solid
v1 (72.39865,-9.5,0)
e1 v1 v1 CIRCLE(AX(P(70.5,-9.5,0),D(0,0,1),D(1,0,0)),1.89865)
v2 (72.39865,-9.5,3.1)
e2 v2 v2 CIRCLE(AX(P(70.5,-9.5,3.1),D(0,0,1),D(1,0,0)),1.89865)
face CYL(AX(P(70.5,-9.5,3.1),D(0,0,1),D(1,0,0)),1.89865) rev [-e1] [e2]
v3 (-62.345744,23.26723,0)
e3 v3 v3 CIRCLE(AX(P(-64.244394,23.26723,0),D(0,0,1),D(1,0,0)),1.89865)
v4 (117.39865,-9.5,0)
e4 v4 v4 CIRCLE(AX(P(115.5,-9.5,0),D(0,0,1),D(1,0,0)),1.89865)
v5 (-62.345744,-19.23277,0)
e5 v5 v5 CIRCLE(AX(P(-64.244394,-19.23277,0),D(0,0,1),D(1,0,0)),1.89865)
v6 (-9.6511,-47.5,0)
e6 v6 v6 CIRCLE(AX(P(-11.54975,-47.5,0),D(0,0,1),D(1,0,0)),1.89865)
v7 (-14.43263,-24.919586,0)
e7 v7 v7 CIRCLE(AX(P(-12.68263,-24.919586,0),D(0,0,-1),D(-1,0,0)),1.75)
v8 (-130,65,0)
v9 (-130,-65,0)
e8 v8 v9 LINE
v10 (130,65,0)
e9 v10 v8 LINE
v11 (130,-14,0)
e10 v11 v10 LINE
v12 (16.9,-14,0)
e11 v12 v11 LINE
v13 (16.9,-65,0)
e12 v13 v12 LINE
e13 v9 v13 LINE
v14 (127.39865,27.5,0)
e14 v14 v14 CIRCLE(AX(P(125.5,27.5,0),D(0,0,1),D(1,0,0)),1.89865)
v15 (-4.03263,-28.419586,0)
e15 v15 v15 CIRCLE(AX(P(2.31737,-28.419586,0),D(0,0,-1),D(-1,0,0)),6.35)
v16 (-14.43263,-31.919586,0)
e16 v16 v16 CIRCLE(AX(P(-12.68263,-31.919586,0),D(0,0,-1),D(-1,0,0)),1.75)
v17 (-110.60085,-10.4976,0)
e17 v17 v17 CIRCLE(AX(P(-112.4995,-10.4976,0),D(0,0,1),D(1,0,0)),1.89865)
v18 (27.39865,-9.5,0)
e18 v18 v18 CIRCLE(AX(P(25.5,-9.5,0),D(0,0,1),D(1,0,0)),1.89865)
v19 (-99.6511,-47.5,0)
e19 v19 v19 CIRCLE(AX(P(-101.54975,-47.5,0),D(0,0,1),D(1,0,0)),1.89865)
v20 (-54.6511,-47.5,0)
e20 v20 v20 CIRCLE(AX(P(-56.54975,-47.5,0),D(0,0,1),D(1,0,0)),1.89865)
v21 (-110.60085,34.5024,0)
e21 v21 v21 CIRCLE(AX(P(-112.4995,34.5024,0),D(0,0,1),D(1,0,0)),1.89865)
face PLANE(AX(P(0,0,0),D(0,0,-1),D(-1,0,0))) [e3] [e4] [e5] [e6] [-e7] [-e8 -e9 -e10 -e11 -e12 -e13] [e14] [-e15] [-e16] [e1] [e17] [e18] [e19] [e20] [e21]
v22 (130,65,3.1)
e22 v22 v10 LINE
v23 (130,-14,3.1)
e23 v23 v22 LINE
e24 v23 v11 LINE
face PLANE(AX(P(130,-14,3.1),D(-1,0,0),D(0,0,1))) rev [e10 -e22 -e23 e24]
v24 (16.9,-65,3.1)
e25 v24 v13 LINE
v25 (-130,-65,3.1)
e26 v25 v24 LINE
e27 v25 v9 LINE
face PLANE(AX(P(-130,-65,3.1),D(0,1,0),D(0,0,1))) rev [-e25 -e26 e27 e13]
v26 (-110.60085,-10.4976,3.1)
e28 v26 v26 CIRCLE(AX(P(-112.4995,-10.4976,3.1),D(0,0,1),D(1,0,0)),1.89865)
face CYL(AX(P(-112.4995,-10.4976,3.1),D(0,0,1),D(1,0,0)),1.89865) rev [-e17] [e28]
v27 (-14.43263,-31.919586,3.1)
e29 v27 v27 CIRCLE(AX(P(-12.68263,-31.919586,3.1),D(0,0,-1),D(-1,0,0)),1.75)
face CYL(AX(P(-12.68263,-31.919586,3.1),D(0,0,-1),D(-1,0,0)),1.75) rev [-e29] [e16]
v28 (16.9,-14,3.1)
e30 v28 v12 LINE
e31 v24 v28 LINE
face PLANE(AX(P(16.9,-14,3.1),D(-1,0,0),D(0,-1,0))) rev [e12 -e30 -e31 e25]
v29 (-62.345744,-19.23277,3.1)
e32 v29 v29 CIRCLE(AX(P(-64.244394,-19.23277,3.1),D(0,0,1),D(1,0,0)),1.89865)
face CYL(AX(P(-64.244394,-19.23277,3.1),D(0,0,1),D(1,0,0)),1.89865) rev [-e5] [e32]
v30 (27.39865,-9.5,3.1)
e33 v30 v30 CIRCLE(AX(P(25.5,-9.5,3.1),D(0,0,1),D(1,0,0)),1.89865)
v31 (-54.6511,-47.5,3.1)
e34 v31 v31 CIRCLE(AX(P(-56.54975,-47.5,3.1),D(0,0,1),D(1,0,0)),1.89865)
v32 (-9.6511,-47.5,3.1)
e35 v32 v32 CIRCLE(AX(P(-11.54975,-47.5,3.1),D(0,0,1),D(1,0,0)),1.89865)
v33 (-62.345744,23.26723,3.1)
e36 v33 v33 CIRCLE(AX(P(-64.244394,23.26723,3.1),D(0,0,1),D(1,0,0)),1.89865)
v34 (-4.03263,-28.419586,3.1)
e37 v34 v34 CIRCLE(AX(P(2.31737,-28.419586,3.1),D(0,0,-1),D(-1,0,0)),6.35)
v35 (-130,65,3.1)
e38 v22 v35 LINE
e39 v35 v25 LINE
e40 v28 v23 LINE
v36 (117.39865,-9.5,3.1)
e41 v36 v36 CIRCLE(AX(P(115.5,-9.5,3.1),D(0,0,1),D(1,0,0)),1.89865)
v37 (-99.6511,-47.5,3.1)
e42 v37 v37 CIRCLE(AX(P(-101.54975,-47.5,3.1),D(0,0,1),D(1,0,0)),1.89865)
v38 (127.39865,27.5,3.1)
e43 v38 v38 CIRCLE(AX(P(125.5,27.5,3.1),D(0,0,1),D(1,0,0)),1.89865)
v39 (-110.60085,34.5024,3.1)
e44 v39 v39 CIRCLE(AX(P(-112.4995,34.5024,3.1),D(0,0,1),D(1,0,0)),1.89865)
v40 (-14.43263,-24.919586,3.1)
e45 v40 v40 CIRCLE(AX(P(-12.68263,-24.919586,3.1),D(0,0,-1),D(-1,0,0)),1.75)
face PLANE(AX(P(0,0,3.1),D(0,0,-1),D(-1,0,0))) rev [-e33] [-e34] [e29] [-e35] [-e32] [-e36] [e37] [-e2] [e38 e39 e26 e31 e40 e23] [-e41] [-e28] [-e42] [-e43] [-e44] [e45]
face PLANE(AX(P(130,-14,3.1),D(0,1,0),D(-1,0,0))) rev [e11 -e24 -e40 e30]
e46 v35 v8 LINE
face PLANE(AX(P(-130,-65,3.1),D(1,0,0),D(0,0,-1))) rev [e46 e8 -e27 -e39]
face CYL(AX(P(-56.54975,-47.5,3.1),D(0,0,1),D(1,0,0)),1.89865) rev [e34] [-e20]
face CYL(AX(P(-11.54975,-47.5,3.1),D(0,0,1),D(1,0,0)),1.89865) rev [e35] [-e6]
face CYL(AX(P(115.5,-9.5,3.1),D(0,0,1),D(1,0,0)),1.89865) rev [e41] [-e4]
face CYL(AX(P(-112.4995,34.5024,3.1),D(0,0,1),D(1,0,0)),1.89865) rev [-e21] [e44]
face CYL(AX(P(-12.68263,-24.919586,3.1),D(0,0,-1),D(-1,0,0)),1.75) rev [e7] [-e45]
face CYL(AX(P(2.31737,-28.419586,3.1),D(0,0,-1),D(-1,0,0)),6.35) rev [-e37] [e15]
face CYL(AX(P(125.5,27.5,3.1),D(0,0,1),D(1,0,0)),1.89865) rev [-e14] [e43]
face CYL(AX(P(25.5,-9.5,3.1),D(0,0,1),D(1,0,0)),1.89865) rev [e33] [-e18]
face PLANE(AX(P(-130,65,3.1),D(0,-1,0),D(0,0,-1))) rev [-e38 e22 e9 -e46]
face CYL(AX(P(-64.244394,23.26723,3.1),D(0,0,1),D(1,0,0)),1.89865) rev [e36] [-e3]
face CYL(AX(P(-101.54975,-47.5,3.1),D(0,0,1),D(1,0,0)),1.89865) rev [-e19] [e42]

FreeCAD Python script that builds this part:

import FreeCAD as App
import Part
import Sketcher
from FreeCAD import Vector


def add_polygon(sketch, points):
    """Adds a closed chain of lines whose ends are joined by coincident constraints."""
    first, n = sketch.GeometryCount, len(points)
    for a, b in zip(points, points[1:] + points[:1]):
        sketch.addGeometry(Part.LineSegment(App.Vector(*a, 0), App.Vector(*b, 0)), False)
    for i in range(n):
        sketch.addConstraint(Sketcher.Constraint("Coincident", first + i, 2, first + (i + 1) % n, 1))

doc = App.newDocument("Part")
body = doc.addObject("PartDesign::Body", "Body")

sketch1 = body.newObject("Sketcher::SketchObject", "Sketch")
sketch1.AttachmentSupport = (doc.getObject("XY_Plane"), [""])
sketch1.MapMode = "FlatFace"
add_polygon(sketch1, [(17, -14), (130, -14), (130, 65), (-130, 65), (-130, -65), (17, -65)])
sketch1.addConstraint([
    Sketcher.Constraint("Horizontal", 0),
    Sketcher.Constraint("Vertical", 1),
    Sketcher.Constraint("Horizontal", 2),
    Sketcher.Constraint("Vertical", 3),
    Sketcher.Constraint("Horizontal", 4),
    Sketcher.Constraint("Vertical", 5),
    Sketcher.Constraint("Symmetric", 1, 2, 3, 2, -1, 1),
    Sketcher.Constraint("DistanceX", 2, 2, 2, 1, 260.0),
    Sketcher.Constraint("DistanceY", 1, 1, 1, 2, 79.0),
    Sketcher.Constraint("DistanceY", 3, 2, 3, 1, 130.0),
    Sketcher.Constraint("DistanceX", 0, 1, 0, 2, 113.1),
])
pad1 = body.newObject("PartDesign::Pad", "Pad")
pad1.Profile = sketch1
pad1.Length = 3.1

sketch2 = body.newObject("Sketcher::SketchObject", "Sketch001")
sketch2.AttachmentSupport = (doc.getObject("XY_Plane"), [""])
sketch2.MapMode = "FlatFace"
sketch2.AttachmentOffset = App.Placement(Vector(0, 0, 3.1), App.Rotation())
sketch2.addGeometry([
    Part.Circle(Vector(25.5, -9.5, 0), Vector(0, 0, 1), 1.9),
    Part.Circle(Vector(70.5, -9.5, 0), Vector(0, 0, 1), 1.9),
    Part.Circle(Vector(115.5, -9.5, 0), Vector(0, 0, 1), 1.9),
    Part.Circle(Vector(-11.5, -47.5, 0), Vector(0, 0, 1), 1.9),
    Part.Circle(Vector(-56.5, -47.5, 0), Vector(0, 0, 1), 1.9),
    Part.Circle(Vector(-101.5, -47.5, 0), Vector(0, 0, 1), 1.9),
    Part.Circle(Vector(125.5, 27.5, 0), Vector(0, 0, 1), 1.9),
    Part.Circle(Vector(-64.2, -19.2, 0), Vector(0, 0, 1), 1.9),
    Part.Circle(Vector(-64.2, 23.3, 0), Vector(0, 0, 1), 1.9),
], False)
sketch2.addConstraint([
    Sketcher.Constraint("Equal", 0, 1),
    Sketcher.Constraint("Equal", 1, 2),
    Sketcher.Constraint("Equal", 2, 3),
    Sketcher.Constraint("Equal", 3, 4),
    Sketcher.Constraint("Equal", 4, 5),
    Sketcher.Constraint("Equal", 5, 6),
    Sketcher.Constraint("Equal", 6, 7),
    Sketcher.Constraint("Equal", 7, 8),
    Sketcher.Constraint("Horizontal", 0, 3, 1, 3),
    Sketcher.Constraint("Horizontal", 1, 3, 2, 3),
    Sketcher.Constraint("Horizontal", 3, 3, 4, 3),
    Sketcher.Constraint("Horizontal", 4, 3, 5, 3),
    Sketcher.Constraint("Vertical", 7, 3, 8, 3),
    Sketcher.Constraint("DistanceX", 0, 3, 1, 3, 45.0),
    Sketcher.Constraint("DistanceX", 1, 3, 2, 3, 45.0),
    Sketcher.Constraint("DistanceY", 3, 3, 0, 3, 38.0),
    Sketcher.Constraint("DistanceX", 4, 3, 3, 3, 45.0),
    Sketcher.Constraint("DistanceX", 5, 3, 4, 3, 45.0),
    Sketcher.Constraint("DistanceX", 2, 3, 6, 3, 10.0),
    Sketcher.Constraint("DistanceY", 2, 3, 6, 3, 37.0),
    Sketcher.Constraint("Diameter", 0, 3.7973),
    Sketcher.Constraint("DistanceX", -1, 1, 0, 3, 25.5),
    Sketcher.Constraint("DistanceY", 0, 3, -1, 1, 9.5),
    Sketcher.Constraint("DistanceY", 7, 3, 8, 3, 42.5),
    Sketcher.Constraint("DistanceX", 3, 3, -1, 1, 11.54975),
    Sketcher.Constraint("DistanceY", 7, 3, -1, 1, 19.23277),
    Sketcher.Constraint("DistanceX", 7, 3, -1, 1, 64.244394),
])
doc.recompute()
hole = body.newObject("PartDesign::Hole", "Hole")
hole.Profile = sketch2
hole.ThreadType = "None"
hole.Diameter = 3.7973
hole.DepthType = "ThroughAll"

sketch3 = body.newObject("Sketcher::SketchObject", "Sketch002")
sketch3.AttachmentSupport = (doc.getObject("XY_Plane"), [""])
sketch3.MapMode = "FlatFace"
sketch3.AttachmentOffset = App.Placement(Vector(0, 0, 3.1), App.Rotation())
sketch3.addGeometry([
    Part.Circle(Vector(-112.5, 34.5, 0), Vector(0, 0, 1), 1.9),
    Part.Circle(Vector(-112.5, -10.5, 0), Vector(0, 0, 1), 1.9),
], False)
sketch3.addConstraint([
    Sketcher.Constraint("Equal", 0, 1),
    Sketcher.Constraint("Vertical", 0, 3, 1, 3),
    Sketcher.Constraint("DistanceY", 1, 3, 0, 3, 45.0),
    Sketcher.Constraint("Diameter", 0, 3.7973),
    Sketcher.Constraint("DistanceX", 0, 3, -1, 1, 112.4995),
    Sketcher.Constraint("DistanceY", -1, 1, 0, 3, 34.5024),
])
doc.recompute()
hole2 = body.newObject("PartDesign::Hole", "Hole001")
hole2.Profile = sketch3
hole2.ThreadType = "None"
hole2.Diameter = 3.7973
hole2.DepthType = "ThroughAll"

sketch4 = body.newObject("Sketcher::SketchObject", "Sketch003")
sketch4.AttachmentSupport = (doc.getObject("XY_Plane"), [""])
sketch4.MapMode = "FlatFace"
sketch4.addGeometry([
    Part.Circle(Vector(2.3, -28.4, 0), Vector(0, 0, 1), 6.3),
    Part.Circle(Vector(-12.7, -24.9, 0), Vector(0, 0, 1), 1.8),
    Part.Circle(Vector(-12.7, -31.9, 0), Vector(0, 0, 1), 1.8),
], False)
sketch4.addConstraint([
    Sketcher.Constraint("Equal", 1, 2),
    Sketcher.Constraint("Vertical", 1, 3, 2, 3),
    Sketcher.Constraint("Diameter", 0, 12.7),
    Sketcher.Constraint("Diameter", 1, 3.5),
    Sketcher.Constraint("DistanceX", 1, 3, 0, 3, 15.0),
    Sketcher.Constraint("DistanceY", 2, 3, 1, 3, 7.0),
    Sketcher.Constraint("DistanceY", 0, 3, 1, 3, 3.5),
    Sketcher.Constraint("DistanceX", -1, 1, 0, 3, 2.31737),
    Sketcher.Constraint("DistanceY", 0, 3, -1, 1, 28.419586),
])
pocket1 = body.newObject("PartDesign::Pocket", "Pocket")
pocket1.Profile = sketch4
pocket1.Type = "ThroughAll"
pocket1.Reversed = True

doc.recompute()
